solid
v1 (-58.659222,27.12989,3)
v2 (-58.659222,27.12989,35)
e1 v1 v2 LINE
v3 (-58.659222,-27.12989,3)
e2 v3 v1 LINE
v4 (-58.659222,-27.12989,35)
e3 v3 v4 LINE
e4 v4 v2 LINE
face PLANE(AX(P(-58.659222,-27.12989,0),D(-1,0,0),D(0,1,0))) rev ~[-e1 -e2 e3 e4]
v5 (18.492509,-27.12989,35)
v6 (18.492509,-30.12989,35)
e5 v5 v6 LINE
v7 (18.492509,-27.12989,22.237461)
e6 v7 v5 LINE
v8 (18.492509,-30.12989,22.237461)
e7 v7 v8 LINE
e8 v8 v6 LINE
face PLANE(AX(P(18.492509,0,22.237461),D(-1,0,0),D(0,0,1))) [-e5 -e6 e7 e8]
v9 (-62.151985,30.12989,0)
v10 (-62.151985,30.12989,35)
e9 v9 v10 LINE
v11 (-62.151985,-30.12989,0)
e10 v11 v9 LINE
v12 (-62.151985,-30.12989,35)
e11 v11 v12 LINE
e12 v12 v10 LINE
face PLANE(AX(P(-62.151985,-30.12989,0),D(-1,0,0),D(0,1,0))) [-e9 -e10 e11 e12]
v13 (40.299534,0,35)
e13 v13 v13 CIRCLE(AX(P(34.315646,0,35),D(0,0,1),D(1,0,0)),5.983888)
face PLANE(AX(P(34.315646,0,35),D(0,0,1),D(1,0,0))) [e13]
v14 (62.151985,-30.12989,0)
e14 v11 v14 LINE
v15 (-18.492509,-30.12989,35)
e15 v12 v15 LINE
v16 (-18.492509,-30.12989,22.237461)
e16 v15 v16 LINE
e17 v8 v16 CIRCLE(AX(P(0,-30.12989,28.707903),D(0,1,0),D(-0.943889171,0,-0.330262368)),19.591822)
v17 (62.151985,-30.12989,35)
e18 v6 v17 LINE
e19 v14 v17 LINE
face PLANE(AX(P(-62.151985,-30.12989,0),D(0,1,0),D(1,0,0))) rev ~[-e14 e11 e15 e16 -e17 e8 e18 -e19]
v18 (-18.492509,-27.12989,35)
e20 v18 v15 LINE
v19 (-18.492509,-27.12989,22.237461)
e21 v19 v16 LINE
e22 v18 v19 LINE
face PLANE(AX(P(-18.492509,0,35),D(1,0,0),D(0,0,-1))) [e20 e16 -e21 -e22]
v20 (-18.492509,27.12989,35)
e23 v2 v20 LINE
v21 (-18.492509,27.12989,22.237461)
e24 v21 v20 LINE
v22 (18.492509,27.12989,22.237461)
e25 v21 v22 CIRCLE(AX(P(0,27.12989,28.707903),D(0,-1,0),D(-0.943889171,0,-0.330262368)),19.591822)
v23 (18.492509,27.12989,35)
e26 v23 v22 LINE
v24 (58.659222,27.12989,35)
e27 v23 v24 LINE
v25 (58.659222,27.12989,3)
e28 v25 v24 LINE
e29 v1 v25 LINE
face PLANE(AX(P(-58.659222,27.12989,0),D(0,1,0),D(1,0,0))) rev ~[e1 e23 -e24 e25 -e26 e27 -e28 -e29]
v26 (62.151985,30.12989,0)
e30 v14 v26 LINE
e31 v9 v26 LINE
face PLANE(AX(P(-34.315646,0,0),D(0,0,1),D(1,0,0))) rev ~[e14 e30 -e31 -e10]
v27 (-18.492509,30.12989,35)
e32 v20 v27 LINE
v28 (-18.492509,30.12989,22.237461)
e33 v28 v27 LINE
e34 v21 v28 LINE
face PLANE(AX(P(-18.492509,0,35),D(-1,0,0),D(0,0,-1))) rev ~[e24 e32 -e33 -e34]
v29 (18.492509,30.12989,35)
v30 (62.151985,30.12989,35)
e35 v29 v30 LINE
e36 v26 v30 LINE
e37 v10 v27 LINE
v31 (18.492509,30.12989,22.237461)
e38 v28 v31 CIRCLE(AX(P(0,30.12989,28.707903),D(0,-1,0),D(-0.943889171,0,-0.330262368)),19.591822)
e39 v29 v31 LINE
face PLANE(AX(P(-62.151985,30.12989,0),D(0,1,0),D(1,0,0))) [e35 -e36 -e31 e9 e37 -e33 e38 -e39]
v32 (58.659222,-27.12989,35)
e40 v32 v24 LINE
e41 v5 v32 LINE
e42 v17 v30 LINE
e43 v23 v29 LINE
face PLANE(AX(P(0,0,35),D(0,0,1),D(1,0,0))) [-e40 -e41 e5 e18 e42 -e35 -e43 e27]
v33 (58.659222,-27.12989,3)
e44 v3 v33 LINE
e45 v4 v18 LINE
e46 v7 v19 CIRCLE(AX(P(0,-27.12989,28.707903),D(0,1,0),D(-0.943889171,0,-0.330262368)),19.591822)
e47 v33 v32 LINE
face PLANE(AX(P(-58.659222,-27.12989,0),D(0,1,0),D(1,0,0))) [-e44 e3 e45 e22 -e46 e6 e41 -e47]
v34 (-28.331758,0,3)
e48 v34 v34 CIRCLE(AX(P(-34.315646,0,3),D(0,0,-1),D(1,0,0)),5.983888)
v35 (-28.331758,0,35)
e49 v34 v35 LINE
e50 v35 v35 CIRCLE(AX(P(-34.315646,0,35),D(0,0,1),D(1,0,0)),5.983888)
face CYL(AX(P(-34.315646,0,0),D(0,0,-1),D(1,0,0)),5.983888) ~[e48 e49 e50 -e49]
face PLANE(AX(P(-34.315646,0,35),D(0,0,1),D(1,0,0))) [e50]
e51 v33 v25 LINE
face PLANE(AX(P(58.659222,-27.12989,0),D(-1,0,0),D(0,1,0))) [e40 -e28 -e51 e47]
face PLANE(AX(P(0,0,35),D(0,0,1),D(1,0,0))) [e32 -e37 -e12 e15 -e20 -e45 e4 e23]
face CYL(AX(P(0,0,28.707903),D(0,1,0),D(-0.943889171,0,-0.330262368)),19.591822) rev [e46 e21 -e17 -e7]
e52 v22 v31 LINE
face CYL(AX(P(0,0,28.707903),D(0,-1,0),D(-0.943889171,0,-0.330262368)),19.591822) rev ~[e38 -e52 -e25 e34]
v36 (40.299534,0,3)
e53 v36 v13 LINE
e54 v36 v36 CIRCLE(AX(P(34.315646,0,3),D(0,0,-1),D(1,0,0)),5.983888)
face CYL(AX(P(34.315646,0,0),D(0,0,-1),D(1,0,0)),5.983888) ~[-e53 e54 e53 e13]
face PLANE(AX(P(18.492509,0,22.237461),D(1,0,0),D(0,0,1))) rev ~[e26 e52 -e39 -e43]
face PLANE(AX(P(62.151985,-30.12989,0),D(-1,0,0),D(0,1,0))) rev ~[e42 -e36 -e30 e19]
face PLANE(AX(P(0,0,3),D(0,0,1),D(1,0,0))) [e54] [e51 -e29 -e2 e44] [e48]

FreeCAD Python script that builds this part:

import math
import FreeCAD as App
import Part
import Sketcher
from FreeCAD import Vector


def add_polygon(sketch, points):
    """Adds a closed chain of lines whose ends are joined by coincident constraints."""
    first, n = sketch.GeometryCount, len(points)
    for a, b in zip(points, points[1:] + points[:1]):
        sketch.addGeometry(Part.LineSegment(App.Vector(*a, 0), App.Vector(*b, 0)), False)
    for i in range(n):
        sketch.addConstraint(Sketcher.Constraint("Coincident", first + i, 2, first + (i + 1) % n, 1))

doc = App.newDocument("Part")
params = doc.addObject("Spreadsheet::Sheet", "Params")
for row, (alias, value) in enumerate([
    ("pad1_length", "3 mm"),
    ("pad2_length", "35 mm"),
    ("pad3_length", "35 mm"),
], start=1):
    params.set(f"A{row}", alias)
    params.set(f"B{row}", "=" + value)
    params.setAlias(f"B{row}", alias)

body = doc.addObject("PartDesign::Body", "Body")

# Sketch on XY plane
sketch1 = body.newObject("Sketcher::SketchObject", "Sketch")
sketch1.AttachmentSupport = (doc.getObject("XY_Plane"), [""])
sketch1.MapMode = "FlatFace"
add_polygon(sketch1, [(-59, 27), (-59, -27), (59, -27), (59, 27)])  # lines 0-3
sketch1.addConstraint(Sketcher.Constraint("Vertical", 0))
sketch1.addConstraint(Sketcher.Constraint("Horizontal", 1))
sketch1.addConstraint(Sketcher.Constraint("Vertical", 2))
sketch1.addConstraint(Sketcher.Constraint("Horizontal", 3))
sketch1.addConstraint(Sketcher.Constraint("Symmetric", 0, 2, 2, 2, -1, 1))
sketch1.addConstraint(Sketcher.Constraint("DistanceY", 0, 2, 0, 1, 54.259781))
sketch1.addConstraint(Sketcher.Constraint("DistanceX", 1, 1, 1, 2, 117.318444))
pad1 = body.newObject("PartDesign::Pad", "Pad")
pad1.Profile = sketch1
pad1.setExpression("Length", "Params.pad1_length")

# Sketch on XY plane
sketch2 = body.newObject("Sketcher::SketchObject", "Sketch001")
sketch2.AttachmentSupport = (doc.getObject("XY_Plane"), [""])
sketch2.MapMode = "FlatFace"
add_polygon(sketch2, [(-62, 30), (-62, -30), (62, -30), (62, 30)])  # lines 0-3
add_polygon(sketch2, [(59, -27), (-59, -27), (-59, 27), (59, 27)])  # lines 4-7
sketch2.addConstraint(Sketcher.Constraint("Vertical", 0))
sketch2.addConstraint(Sketcher.Constraint("Horizontal", 1))
sketch2.addConstraint(Sketcher.Constraint("Vertical", 2))
sketch2.addConstraint(Sketcher.Constraint("Horizontal", 3))
sketch2.addConstraint(Sketcher.Constraint("Horizontal", 4))
sketch2.addConstraint(Sketcher.Constraint("Vertical", 5))
sketch2.addConstraint(Sketcher.Constraint("Horizontal", 6))
sketch2.addConstraint(Sketcher.Constraint("Vertical", 7))
sketch2.addConstraint(Sketcher.Constraint("Symmetric", 0, 2, 2, 2, -1, 1))
sketch2.addConstraint(Sketcher.Constraint("Symmetric", 4, 2, 6, 2, -1, 1))
sketch2.addConstraint(Sketcher.Constraint("DistanceY", 0, 2, 4, 2, 3.0))
sketch2.addConstraint(Sketcher.Constraint("DistanceX", 1, 1, 1, 2, 124.30397))
sketch2.addConstraint(Sketcher.Constraint("DistanceY", 0, 2, 0, 1, 60.259781))
sketch2.addConstraint(Sketcher.Constraint("DistanceX", 4, 2, 4, 1, 117.318444))
pad2 = body.newObject("PartDesign::Pad", "Pad001")
pad2.Profile = sketch2
pad2.setExpression("Length", "Params.pad2_length")

# Sketch on XY plane
sketch3 = body.newObject("Sketcher::SketchObject", "Sketch002")
sketch3.AttachmentSupport = (doc.getObject("XY_Plane"), [""])
sketch3.MapMode = "FlatFace"
sketch3.addGeometry(Part.Circle(Vector(-34, 0, 0), Vector(0, 0, 1), 6), False)
sketch3.addGeometry(Part.Circle(Vector(34, 0, 0), Vector(0, 0, 1), 6), False)
sketch3.addConstraint(Sketcher.Constraint("Equal", 0, 1))
sketch3.addConstraint(Sketcher.Constraint("Symmetric", 0, 3, 1, 3, -1, 1))
sketch3.addConstraint(Sketcher.Constraint("PointOnObject", 0, 3, -1))
sketch3.addConstraint(Sketcher.Constraint("Diameter", 0, 11.967776))
sketch3.addConstraint(Sketcher.Constraint("DistanceX", 0, 3, 1, 3, 68.631291))
pad3 = body.newObject("PartDesign::Pad", "Pad002")
pad3.Profile = sketch3
pad3.setExpression("Length", "Params.pad3_length")

# Sketch on XZ plane
sketch4 = body.newObject("Sketcher::SketchObject", "Sketch003")
sketch4.AttachmentSupport = (doc.getObject("XZ_Plane"), [""])
sketch4.MapMode = "FlatFace"
sketch4.addGeometry(Part.LineSegment(Vector(18, 35, 0), Vector(-18, 35, 0)), False)
sketch4.addGeometry(Part.LineSegment(Vector(-18, 35, 0), Vector(-18, 22, 0)), False)
sketch4.addGeometry(Part.ArcOfCircle(Part.Circle(Vector(0, 29, 0), Vector(0, 0, 1), 20), math.radians(-161), math.radians(-19)), False)
sketch4.addGeometry(Part.LineSegment(Vector(18, 22, 0), Vector(18, 35, 0)), False)
sketch4.addConstraint(Sketcher.Constraint("Coincident", 0, 2, 1, 1))
sketch4.addConstraint(Sketcher.Constraint("Coincident", 1, 2, 2, 1))
sketch4.addConstraint(Sketcher.Constraint("Coincident", 2, 2, 3, 1))
sketch4.addConstraint(Sketcher.Constraint("Coincident", 3, 2, 0, 1))
sketch4.addConstraint(Sketcher.Constraint("Horizontal", 0))
sketch4.addConstraint(Sketcher.Constraint("Vertical", 1))
sketch4.addConstraint(Sketcher.Constraint("Vertical", 3))
sketch4.addConstraint(Sketcher.Constraint("Symmetric", 1, 2, 2, 2, -2))
sketch4.addConstraint(Sketcher.Constraint("DistanceY", -1, 1, 0, 2, 35.0))
sketch4.addConstraint(Sketcher.Constraint("Radius", 2, 19.591822))
sketch4.addConstraint(Sketcher.Constraint("DistanceY", 1, 2, 1, 1, 12.762539))
sketch4.addConstraint(Sketcher.Constraint("DistanceX", 0, 2, 0, 1, 36.985017))
pocket1 = body.newObject("PartDesign::Pocket", "Pocket")
pocket1.Profile = sketch4
pocket1.Type = "ThroughAll"
pocket1.Midplane = True

doc.recompute()
